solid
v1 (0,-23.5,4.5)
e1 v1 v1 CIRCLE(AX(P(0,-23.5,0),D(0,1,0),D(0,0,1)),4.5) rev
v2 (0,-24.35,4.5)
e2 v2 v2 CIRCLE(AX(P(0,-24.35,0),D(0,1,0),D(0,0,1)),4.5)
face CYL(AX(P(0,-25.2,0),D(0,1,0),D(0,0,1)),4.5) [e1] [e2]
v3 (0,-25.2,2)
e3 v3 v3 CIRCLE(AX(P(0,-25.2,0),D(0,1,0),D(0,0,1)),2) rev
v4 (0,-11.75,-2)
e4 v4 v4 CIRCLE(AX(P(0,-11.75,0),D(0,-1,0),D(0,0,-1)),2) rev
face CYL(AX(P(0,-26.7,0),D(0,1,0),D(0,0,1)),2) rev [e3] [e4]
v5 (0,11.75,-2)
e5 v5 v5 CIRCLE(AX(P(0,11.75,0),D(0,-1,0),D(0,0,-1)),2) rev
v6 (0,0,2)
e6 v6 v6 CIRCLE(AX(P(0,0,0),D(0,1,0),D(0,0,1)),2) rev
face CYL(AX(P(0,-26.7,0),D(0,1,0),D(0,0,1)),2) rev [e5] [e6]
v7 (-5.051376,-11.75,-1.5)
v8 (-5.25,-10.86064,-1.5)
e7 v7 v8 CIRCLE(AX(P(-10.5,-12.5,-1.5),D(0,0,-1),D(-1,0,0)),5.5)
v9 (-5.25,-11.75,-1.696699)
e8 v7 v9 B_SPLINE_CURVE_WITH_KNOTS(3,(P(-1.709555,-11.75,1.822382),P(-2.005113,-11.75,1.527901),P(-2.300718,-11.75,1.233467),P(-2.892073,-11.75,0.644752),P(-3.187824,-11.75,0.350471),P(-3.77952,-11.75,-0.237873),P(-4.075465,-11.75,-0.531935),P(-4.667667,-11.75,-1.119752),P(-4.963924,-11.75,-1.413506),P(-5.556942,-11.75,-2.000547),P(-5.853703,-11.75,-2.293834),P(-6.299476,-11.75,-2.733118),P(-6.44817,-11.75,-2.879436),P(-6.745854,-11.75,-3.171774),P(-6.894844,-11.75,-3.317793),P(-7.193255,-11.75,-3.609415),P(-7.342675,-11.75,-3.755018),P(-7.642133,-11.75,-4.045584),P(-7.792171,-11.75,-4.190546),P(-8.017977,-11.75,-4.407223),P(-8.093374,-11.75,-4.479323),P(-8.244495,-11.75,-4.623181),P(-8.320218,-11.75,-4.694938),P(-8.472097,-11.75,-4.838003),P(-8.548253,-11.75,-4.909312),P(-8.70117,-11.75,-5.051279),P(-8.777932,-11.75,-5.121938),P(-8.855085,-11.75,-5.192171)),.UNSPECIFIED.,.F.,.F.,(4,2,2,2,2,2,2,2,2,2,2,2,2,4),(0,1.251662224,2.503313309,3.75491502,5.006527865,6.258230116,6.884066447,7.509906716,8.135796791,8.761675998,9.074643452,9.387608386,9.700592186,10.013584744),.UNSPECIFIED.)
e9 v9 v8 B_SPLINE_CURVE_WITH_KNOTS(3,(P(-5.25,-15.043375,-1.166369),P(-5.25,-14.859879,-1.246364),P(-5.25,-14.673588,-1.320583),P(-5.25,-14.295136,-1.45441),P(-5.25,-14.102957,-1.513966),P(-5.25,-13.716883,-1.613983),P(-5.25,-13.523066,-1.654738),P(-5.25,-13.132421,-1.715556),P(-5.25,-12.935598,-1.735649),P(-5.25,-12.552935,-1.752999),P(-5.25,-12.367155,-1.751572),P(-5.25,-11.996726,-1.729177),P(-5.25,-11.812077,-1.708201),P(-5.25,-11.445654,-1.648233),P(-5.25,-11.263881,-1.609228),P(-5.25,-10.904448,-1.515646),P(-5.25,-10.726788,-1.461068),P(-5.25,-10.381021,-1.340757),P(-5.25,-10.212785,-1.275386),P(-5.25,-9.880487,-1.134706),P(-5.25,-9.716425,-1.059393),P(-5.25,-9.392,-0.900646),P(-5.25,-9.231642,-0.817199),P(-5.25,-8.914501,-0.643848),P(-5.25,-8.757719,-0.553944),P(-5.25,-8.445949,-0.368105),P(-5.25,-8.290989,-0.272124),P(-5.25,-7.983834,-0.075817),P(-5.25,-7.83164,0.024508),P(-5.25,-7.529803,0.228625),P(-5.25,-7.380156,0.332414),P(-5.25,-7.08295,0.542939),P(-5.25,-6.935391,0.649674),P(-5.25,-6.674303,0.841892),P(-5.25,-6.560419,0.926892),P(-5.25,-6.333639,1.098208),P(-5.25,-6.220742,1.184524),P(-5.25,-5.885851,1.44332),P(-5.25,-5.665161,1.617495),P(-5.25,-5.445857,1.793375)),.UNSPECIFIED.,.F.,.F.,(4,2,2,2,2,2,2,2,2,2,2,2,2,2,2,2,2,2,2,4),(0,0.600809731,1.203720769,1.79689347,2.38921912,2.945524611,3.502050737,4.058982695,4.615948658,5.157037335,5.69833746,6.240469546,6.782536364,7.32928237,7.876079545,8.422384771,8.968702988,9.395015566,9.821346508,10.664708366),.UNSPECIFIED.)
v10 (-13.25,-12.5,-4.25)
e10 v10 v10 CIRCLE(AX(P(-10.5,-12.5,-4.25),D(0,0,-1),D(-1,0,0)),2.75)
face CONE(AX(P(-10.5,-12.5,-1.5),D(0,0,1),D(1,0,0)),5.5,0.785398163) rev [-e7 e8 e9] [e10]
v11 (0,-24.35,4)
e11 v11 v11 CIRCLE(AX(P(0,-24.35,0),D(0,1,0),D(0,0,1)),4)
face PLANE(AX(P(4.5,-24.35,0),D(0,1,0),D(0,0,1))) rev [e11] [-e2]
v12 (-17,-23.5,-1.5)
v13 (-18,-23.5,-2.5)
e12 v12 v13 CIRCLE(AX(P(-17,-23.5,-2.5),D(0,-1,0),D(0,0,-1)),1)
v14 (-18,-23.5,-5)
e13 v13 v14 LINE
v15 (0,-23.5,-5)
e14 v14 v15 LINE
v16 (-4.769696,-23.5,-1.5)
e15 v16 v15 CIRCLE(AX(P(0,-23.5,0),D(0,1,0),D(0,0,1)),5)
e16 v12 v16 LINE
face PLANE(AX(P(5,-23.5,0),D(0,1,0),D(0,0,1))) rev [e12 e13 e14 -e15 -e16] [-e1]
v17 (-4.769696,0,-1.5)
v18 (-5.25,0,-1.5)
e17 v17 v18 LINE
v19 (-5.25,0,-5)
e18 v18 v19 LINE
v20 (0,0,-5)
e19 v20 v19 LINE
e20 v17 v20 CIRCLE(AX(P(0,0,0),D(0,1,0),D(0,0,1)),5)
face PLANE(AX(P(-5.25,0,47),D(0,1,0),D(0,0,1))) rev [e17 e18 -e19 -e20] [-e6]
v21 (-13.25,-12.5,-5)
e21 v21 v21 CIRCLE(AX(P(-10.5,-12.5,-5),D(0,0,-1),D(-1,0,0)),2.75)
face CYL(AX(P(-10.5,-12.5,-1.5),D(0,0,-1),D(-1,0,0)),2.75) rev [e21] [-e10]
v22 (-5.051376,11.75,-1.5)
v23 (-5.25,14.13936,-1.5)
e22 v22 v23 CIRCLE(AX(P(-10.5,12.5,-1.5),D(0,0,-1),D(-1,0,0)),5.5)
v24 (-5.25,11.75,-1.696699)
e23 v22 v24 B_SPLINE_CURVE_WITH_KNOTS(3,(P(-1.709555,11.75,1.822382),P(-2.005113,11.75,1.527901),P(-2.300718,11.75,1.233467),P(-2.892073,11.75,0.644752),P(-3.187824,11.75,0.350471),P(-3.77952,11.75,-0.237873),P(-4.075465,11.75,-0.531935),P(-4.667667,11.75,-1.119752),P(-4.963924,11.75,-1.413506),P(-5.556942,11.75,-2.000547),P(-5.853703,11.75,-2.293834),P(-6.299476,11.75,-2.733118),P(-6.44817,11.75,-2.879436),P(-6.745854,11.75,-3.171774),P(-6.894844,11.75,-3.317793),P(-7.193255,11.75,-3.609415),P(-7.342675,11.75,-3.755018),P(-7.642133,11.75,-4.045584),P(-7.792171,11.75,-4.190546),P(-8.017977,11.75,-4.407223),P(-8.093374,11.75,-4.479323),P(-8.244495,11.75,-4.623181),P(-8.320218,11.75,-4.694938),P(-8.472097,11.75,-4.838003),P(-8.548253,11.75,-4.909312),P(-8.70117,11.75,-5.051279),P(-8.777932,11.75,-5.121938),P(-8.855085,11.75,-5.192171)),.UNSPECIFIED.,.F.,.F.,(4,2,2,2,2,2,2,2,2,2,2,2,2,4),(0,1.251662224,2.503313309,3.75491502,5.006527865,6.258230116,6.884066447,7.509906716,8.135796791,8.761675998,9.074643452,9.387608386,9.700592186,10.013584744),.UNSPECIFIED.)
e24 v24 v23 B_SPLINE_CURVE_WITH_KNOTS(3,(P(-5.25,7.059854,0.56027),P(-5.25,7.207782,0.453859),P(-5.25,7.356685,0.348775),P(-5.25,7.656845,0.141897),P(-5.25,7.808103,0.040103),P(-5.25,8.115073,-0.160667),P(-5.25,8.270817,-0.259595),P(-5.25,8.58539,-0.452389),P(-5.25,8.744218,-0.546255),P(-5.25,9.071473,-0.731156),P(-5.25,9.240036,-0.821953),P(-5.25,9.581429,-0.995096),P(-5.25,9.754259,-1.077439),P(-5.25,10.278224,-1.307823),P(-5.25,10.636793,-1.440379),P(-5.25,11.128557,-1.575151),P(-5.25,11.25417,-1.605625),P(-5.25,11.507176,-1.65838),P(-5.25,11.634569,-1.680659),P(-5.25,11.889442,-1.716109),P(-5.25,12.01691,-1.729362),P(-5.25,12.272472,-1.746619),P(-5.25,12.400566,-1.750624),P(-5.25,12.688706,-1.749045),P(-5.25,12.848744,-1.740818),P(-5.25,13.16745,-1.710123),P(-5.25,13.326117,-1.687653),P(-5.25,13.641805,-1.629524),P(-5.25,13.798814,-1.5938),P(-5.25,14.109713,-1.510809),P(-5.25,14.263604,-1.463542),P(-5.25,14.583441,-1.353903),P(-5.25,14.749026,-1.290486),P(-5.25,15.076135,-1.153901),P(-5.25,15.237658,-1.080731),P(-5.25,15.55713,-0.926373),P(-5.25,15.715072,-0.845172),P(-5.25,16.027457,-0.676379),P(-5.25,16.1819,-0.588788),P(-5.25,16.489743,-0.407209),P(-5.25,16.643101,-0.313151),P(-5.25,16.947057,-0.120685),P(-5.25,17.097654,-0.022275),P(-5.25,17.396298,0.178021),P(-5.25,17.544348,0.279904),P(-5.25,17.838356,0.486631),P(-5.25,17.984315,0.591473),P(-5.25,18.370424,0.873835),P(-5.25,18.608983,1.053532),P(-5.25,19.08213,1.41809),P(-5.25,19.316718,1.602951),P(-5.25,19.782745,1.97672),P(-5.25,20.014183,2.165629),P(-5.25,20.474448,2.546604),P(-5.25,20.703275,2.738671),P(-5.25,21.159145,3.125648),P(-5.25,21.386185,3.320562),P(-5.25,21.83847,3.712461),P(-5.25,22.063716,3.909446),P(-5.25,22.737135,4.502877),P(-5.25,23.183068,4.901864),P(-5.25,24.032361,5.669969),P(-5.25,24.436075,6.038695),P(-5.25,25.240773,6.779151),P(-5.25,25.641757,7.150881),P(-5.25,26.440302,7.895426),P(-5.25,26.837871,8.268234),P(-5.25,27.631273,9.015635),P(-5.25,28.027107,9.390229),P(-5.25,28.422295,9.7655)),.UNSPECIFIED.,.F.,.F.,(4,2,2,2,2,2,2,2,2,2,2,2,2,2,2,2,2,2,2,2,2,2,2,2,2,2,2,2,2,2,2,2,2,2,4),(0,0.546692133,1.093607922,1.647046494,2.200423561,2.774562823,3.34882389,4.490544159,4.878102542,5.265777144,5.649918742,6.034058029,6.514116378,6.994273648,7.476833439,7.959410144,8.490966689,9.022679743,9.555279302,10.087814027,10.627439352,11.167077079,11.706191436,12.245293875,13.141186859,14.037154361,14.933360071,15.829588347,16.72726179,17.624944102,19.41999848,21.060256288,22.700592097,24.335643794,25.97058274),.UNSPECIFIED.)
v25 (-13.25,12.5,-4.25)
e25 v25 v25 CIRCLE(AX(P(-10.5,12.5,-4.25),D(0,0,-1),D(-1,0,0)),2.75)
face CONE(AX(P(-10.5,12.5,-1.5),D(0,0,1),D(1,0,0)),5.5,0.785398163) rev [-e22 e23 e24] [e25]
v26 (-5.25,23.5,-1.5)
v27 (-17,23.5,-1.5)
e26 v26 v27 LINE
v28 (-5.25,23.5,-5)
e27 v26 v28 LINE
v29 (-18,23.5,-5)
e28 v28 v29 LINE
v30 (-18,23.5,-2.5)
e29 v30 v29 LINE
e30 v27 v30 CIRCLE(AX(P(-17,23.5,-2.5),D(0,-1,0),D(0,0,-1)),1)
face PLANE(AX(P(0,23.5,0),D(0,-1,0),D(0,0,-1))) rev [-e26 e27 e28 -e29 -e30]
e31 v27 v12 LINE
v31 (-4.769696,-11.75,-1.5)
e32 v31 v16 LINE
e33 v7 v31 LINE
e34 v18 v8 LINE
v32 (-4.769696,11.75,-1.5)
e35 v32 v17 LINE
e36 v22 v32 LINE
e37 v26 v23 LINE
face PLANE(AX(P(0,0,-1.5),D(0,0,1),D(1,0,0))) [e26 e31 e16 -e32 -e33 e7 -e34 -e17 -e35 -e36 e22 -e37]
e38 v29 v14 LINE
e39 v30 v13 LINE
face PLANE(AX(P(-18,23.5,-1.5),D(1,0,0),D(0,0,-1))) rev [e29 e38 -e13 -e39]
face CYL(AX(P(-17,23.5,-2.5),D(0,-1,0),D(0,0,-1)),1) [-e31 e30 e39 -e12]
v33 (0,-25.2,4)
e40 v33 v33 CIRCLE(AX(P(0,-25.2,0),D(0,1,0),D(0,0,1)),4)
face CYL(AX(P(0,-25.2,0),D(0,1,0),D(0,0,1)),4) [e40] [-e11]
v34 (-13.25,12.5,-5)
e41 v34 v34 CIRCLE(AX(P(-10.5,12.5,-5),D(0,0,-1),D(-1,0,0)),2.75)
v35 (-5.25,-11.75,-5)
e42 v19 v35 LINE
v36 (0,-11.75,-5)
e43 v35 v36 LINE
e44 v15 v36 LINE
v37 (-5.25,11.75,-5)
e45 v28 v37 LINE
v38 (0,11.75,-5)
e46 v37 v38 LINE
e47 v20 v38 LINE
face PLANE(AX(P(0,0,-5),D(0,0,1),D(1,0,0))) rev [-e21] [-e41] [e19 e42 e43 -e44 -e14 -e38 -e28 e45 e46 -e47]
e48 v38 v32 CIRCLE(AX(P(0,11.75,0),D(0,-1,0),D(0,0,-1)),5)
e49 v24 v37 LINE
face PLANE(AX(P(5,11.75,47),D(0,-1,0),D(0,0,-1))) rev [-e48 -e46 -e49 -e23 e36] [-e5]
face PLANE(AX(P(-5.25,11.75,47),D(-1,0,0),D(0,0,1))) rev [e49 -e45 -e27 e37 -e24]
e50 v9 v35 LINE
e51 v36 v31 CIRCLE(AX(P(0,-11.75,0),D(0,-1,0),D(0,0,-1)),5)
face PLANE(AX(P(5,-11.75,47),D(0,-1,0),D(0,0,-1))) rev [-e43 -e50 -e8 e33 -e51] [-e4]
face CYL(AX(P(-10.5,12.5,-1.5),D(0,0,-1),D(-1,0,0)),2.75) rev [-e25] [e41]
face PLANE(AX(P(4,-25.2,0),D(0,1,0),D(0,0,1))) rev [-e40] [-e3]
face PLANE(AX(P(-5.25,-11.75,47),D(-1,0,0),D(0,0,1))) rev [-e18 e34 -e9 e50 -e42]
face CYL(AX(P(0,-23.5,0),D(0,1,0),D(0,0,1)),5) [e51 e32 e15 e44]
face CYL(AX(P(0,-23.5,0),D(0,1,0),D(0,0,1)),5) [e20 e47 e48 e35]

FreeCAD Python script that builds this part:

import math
import FreeCAD as App
import Part
import Sketcher
from FreeCAD import Vector
Q = App.Units.Quantity


def add_polygon(sketch, points):
    """Adds a closed chain of lines whose ends are joined by coincident constraints."""
    first, n = sketch.GeometryCount, len(points)
    for a, b in zip(points, points[1:] + points[:1]):
        sketch.addGeometry(Part.LineSegment(App.Vector(*a, 0), App.Vector(*b, 0)), False)
    for i in range(n):
        sketch.addConstraint(Sketcher.Constraint("Coincident", first + i, 2, first + (i + 1) % n, 1))

doc = App.newDocument("Part")
body = doc.addObject("PartDesign::Body", "Body")

# Sketch on XY plane
sketch1 = body.newObject("Sketcher::SketchObject", "Sketch")
sketch1.AttachmentSupport = (doc.getObject("XY_Plane"), [""])
sketch1.MapMode = "FlatFace"
add_polygon(sketch1, [(0, 24), (0, -24), (5, -24), (5, 24)])  # lines 0-3
sketch1.addConstraint([
    Sketcher.Constraint("Vertical", 0),
    Sketcher.Constraint("Horizontal", 1),
    Sketcher.Constraint("Vertical", 2),
    Sketcher.Constraint("Horizontal", 3),
    Sketcher.Constraint("Symmetric", 0, 2, 3, 2, -1, 1),
    Sketcher.Constraint("DistanceX", 1, 1, 1, 2, 5.0),
    Sketcher.Constraint("DistanceY", 0, 2, 0, 1, 47.0),
])
revolution = body.newObject("PartDesign::Revolution", "Revolution")
revolution.Profile = sketch1
revolution.ReferenceAxis = (sketch1, ["V_Axis"])
revolution.Angle = 360

# Sketch on XY plane
sketch2 = body.newObject("Sketcher::SketchObject", "Sketch001")
sketch2.AttachmentSupport = (doc.getObject("XY_Plane"), [""])
sketch2.MapMode = "FlatFace"
sketch2.AttachmentOffset = App.Placement(Vector(0, 0, -5), App.Rotation())
add_polygon(sketch2, [(-18, 24), (-18, -24), (0, -24), (0, 24)])  # lines 0-3
sketch2.addConstraint([
    Sketcher.Constraint("Vertical", 0),
    Sketcher.Constraint("Horizontal", 1),
    Sketcher.Constraint("Vertical", 2),
    Sketcher.Constraint("Horizontal", 3),
    Sketcher.Constraint("Symmetric", 1, 2, 2, 2, -1, 1),
    Sketcher.Constraint("DistanceX", 1, 1, 1, 2, 18.0),
    Sketcher.Constraint("DistanceY", 0, 2, 0, 1, 47.0),
])
pad1 = body.newObject("PartDesign::Pad", "Pad")
pad1.Profile = sketch2
pad1.Length = 3.5

# Sketch on XY plane
sketch3 = body.newObject("Sketcher::SketchObject", "Sketch002")
sketch3.AttachmentSupport = (doc.getObject("XY_Plane"), [""])
sketch3.MapMode = "FlatFace"
add_polygon(sketch3, [(-47, 47), (-47, -47), (47, -47), (47, 47)])  # lines 0-3
add_polygon(sketch3, [(5, -24), (-18, -24), (-18, 24), (-5, 24), (-5, 12), (5, 12), (5, 0), (-5, 0), (-5, -12), (5, -12)])  # lines 4-13
sketch3.addConstraint([
    Sketcher.Constraint("Vertical", 0),
    Sketcher.Constraint("Horizontal", 1),
    Sketcher.Constraint("Vertical", 2),
    Sketcher.Constraint("Horizontal", 3),
    Sketcher.Constraint("Horizontal", 4),
    Sketcher.Constraint("Vertical", 5),
    Sketcher.Constraint("Horizontal", 6),
    Sketcher.Constraint("Vertical", 7),
    Sketcher.Constraint("Horizontal", 8),
    Sketcher.Constraint("Vertical", 9),
    Sketcher.Constraint("Horizontal", 10),
    Sketcher.Constraint("Vertical", 11),
    Sketcher.Constraint("Horizontal", 12),
    Sketcher.Constraint("Vertical", 13),
    Sketcher.Constraint("Symmetric", 0, 2, 2, 2, -1, 1),
    Sketcher.Constraint("Symmetric", 7, 2, 11, 2, -1),
    Sketcher.Constraint("PointOnObject", 9, 2, -1),
    Sketcher.Constraint("Vertical", 9, 2, 12, 2),
    Sketcher.Constraint("Equal", 3, 0),
    Sketcher.Constraint("Equal", 7, 9),
    Sketcher.Constraint("Equal", 11, 13),
    Sketcher.Constraint("DistanceX", 1, 1, 1, 2, 94.0),
    Sketcher.Constraint("DistanceX", 4, 2, 4, 1, 23.0),
    Sketcher.Constraint("DistanceY", 5, 1, 5, 2, 47.0),
    Sketcher.Constraint("DistanceX", 4, 2, -1, 1, 18.0),
    Sketcher.Constraint("DistanceX", 6, 1, 6, 2, 12.75),
])
pocket1 = body.newObject("PartDesign::Pocket", "Pocket")
pocket1.Profile = sketch3
pocket1.Type = "ThroughAll"
pocket1.Midplane = True

# Sketch on XY plane
sketch4 = body.newObject("Sketcher::SketchObject", "Sketch003")
sketch4.AttachmentSupport = (doc.getObject("XY_Plane"), [""])
sketch4.MapMode = "FlatFace"
add_polygon(sketch4, [(4.5, -23.5), (0, -23.5), (0, -25.2), (4, -25.2), (4, -24.4), (4.5, -24.4)])  # lines 0-5
sketch4.addConstraint([
    Sketcher.Constraint("Horizontal", 0),
    Sketcher.Constraint("Vertical", 1),
    Sketcher.Constraint("Horizontal", 2),
    Sketcher.Constraint("Vertical", 3),
    Sketcher.Constraint("Horizontal", 4),
    Sketcher.Constraint("Vertical", 5),
    Sketcher.Constraint("PointOnObject", 0, 2, -2),
    Sketcher.Constraint("Equal", 3, 5),
    Sketcher.Constraint("DistanceX", 2, 1, 2, 2, 4.0),
    Sketcher.Constraint("DistanceX", 0, 2, 0, 1, 4.5),
    Sketcher.Constraint("DistanceY", 1, 2, 1, 1, 1.7),
    Sketcher.Constraint("DistanceY", 0, 2, -1, 1, 23.5),
])
revolution2 = body.newObject("PartDesign::Revolution", "Revolution001")
revolution2.Profile = sketch4
revolution2.ReferenceAxis = (sketch4, ["V_Axis"])
revolution2.Angle = 360

# Sketch on XY plane
sketch5 = body.newObject("Sketcher::SketchObject", "Sketch004")
sketch5.AttachmentSupport = (doc.getObject("XY_Plane"), [""])
sketch5.MapMode = "FlatFace"
add_polygon(sketch5, [(0, 26.7), (0, -26.7), (2, -26.7), (2, 26.7)])  # lines 0-3
sketch5.addConstraint([
    Sketcher.Constraint("Vertical", 0),
    Sketcher.Constraint("Horizontal", 1),
    Sketcher.Constraint("Vertical", 2),
    Sketcher.Constraint("Horizontal", 3),
    Sketcher.Constraint("Symmetric", 0, 2, 3, 2, -1, 1),
    Sketcher.Constraint("DistanceX", 1, 1, 1, 2, 2.0),
    Sketcher.Constraint("DistanceY", 0, 2, 0, 1, 53.4),
])
groove = body.newObject("PartDesign::Groove", "Groove")
groove.Profile = sketch5
groove.ReferenceAxis = (sketch5, ["V_Axis"])
groove.Angle = 360

# Sketch on YZ plane
sketch6 = body.newObject("Sketcher::SketchObject", "Sketch005")
sketch6.AttachmentSupport = (doc.getObject("YZ_Plane"), [""])
sketch6.MapMode = "FlatFace"
sketch6.AttachmentOffset = App.Placement(Vector(0, 0, -10.5), App.Rotation())
add_polygon(sketch6, [(-15.2, -5), (-12.5, -5), (-12.5, -1.5), (-18, -1.5), (-15.2, -4.2)])  # lines 0-4
sketch6.addGeometry(Part.LineSegment(Vector(-12.5, -1.5, 0), Vector(-12.5, -5, 0)), True)  # axis
sketch6.addConstraint([
    Sketcher.Constraint("Horizontal", 0),
    Sketcher.Constraint("Vertical", 1),
    Sketcher.Constraint("Horizontal", 2),
    Sketcher.Constraint("Vertical", 4),
    Sketcher.Constraint("Vertical", 5),
    Sketcher.Constraint("Coincident", 5, 1, 1, 2),
    Sketcher.Constraint("Horizontal", 4, 2, 5, 2),
    Sketcher.Constraint("Angle", 3, Q("-45 deg")),
    Sketcher.Constraint("DistanceX", 2, 2, 2, 1, 5.5),
    Sketcher.Constraint("DistanceY", 1, 1, 1, 2, 3.5),
    Sketcher.Constraint("DistanceY", 0, 2, -1, 1, 5.0),
    Sketcher.Constraint("DistanceX", 2, 2, -1, 1, 18.0),
    Sketcher.Constraint("DistanceX", 0, 1, 0, 2, 2.75),
])
groove2 = body.newObject("PartDesign::Groove", "Groove001")
groove2.Profile = sketch6
groove2.ReferenceAxis = (sketch6, ["Axis0"])
groove2.Angle = 360

# Sketch on YZ plane
sketch7 = body.newObject("Sketcher::SketchObject", "Sketch006")
sketch7.AttachmentSupport = (doc.getObject("YZ_Plane"), [""])
sketch7.MapMode = "FlatFace"
sketch7.AttachmentOffset = App.Placement(Vector(0, 0, -10.5), App.Rotation())
add_polygon(sketch7, [(9.8, -5), (12.5, -5), (12.5, -1.5), (7, -1.5), (9.8, -4.2)])  # lines 0-4
sketch7.addGeometry(Part.LineSegment(Vector(12.5, -1.5, 0), Vector(12.5, -5, 0)), True)  # axis
sketch7.addConstraint([
    Sketcher.Constraint("Horizontal", 0),
    Sketcher.Constraint("Vertical", 1),
    Sketcher.Constraint("Horizontal", 2),
    Sketcher.Constraint("Vertical", 4),
    Sketcher.Constraint("Vertical", 5),
    Sketcher.Constraint("Coincident", 5, 1, 1, 2),
    Sketcher.Constraint("Horizontal", 4, 2, 5, 2),
    Sketcher.Constraint("Angle", 3, Q("-45 deg")),
    Sketcher.Constraint("DistanceX", 2, 2, 2, 1, 5.5),
    Sketcher.Constraint("DistanceY", 1, 1, 1, 2, 3.5),
    Sketcher.Constraint("DistanceY", 0, 2, -1, 1, 5.0),
    Sketcher.Constraint("DistanceX", -1, 1, 2, 2, 7.0),
    Sketcher.Constraint("DistanceX", 0, 1, 0, 2, 2.75),
])
groove3 = body.newObject("PartDesign::Groove", "Groove002")
groove3.Profile = sketch7
groove3.ReferenceAxis = (sketch7, ["Axis0"])
groove3.Angle = 360

# Sketch on XZ plane
sketch8 = body.newObject("Sketcher::SketchObject", "Sketch007")
sketch8.AttachmentSupport = (doc.getObject("XZ_Plane"), [""])
sketch8.MapMode = "FlatFace"
sketch8.addGeometry([
    Part.LineSegment(Vector(-18, -2.5, 0), Vector(-18, -1.5, 0)),
    Part.LineSegment(Vector(-18, -1.5, 0), Vector(-17, -1.5, 0)),
    Part.ArcOfCircle(Part.Circle(Vector(-17, -2.5, 0), Vector(0, 0, 1), 1), math.radians(90), math.radians(180)),
], False)
sketch8.addConstraint([
    Sketcher.Constraint("Coincident", 0, 2, 1, 1),
    Sketcher.Constraint("Tangent", 1, 2, 2, 1),
    Sketcher.Constraint("Tangent", 2, 2, 0, 1),
    Sketcher.Constraint("Vertical", 0),
    Sketcher.Constraint("Horizontal", 1),
    Sketcher.Constraint("Radius", 2, 1.0),
    Sketcher.Constraint("DistanceX", 2, 3, -1, 1, 17.0),
    Sketcher.Constraint("DistanceY", 2, 3, -1, 1, 2.5),
])
pocket2 = body.newObject("PartDesign::Pocket", "Pocket001")
pocket2.Profile = sketch8
pocket2.Type = "ThroughAll"
pocket2.Midplane = True

doc.recompute()
